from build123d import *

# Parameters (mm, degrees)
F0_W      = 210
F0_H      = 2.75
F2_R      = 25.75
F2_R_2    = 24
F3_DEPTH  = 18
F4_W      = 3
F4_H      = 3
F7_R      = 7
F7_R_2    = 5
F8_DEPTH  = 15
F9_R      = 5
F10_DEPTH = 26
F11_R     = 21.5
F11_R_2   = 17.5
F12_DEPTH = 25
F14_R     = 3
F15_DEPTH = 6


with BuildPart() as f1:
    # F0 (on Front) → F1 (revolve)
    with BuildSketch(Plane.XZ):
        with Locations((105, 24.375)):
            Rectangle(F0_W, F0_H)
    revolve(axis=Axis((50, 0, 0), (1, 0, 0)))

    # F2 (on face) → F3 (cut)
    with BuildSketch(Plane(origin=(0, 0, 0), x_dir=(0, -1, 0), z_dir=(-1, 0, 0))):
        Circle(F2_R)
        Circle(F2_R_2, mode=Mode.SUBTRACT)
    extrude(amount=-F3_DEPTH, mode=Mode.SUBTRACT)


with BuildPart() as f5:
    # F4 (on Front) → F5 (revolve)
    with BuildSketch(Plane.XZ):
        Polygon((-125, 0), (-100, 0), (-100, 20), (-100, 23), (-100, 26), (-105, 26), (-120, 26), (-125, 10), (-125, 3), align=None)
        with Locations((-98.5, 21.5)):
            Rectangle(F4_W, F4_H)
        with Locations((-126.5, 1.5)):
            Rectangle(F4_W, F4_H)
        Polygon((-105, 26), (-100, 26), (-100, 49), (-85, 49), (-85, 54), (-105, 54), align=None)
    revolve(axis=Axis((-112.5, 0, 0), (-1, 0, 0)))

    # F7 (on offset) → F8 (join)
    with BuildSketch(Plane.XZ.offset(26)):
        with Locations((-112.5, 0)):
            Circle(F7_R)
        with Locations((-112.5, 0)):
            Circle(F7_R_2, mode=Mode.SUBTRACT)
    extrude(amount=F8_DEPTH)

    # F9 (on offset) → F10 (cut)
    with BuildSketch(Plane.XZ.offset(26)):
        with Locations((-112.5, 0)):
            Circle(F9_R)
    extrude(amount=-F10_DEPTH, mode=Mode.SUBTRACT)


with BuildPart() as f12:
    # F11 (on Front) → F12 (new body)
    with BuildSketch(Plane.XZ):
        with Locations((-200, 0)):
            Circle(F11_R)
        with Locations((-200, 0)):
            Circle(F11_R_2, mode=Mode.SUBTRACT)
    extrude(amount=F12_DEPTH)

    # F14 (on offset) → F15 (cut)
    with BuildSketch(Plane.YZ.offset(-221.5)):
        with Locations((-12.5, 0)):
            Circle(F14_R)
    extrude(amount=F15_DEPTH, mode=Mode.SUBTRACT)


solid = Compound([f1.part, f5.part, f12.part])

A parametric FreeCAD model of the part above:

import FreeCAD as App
import Part
import Sketcher

V = App.Vector

doc = App.newDocument("Part")
body = doc.addObject("PartDesign::Body", "Body")

sketch1 = body.newObject("Sketcher::SketchObject", "Sketch")
sketch1.AttachmentSupport = (doc.getObject("XZ_Plane"), [""])
sketch1.MapMode = "FlatFace"
sketch1.addGeometry(Part.LineSegment(V(0, 25.75, 0), V(0, 23, 0)), False)
sketch1.addGeometry(Part.LineSegment(V(0, 23, 0), V(210, 23, 0)), False)
sketch1.addGeometry(Part.LineSegment(V(210, 23, 0), V(210, 25.75, 0)), False)
sketch1.addGeometry(Part.LineSegment(V(210, 25.75, 0), V(0, 25.75, 0)), False)
sketch1.addConstraint(Sketcher.Constraint("Coincident", 0, 2, 1, 1))
sketch1.addConstraint(Sketcher.Constraint("Coincident", 1, 2, 2, 1))
sketch1.addConstraint(Sketcher.Constraint("Coincident", 2, 2, 3, 1))
sketch1.addConstraint(Sketcher.Constraint("Coincident", 3, 2, 0, 1))
sketch1.addConstraint(Sketcher.Constraint("Vertical", 0))
sketch1.addConstraint(Sketcher.Constraint("Horizontal", 1))
sketch1.addConstraint(Sketcher.Constraint("Vertical", 2))
sketch1.addConstraint(Sketcher.Constraint("Horizontal", 3))
sketch1.addConstraint(Sketcher.Constraint("PointOnObject", 0, 2, -2))
sketch1.addConstraint(Sketcher.Constraint("DistanceX", 1, 1, 1, 2, 210.0))
sketch1.addConstraint(Sketcher.Constraint("DistanceY", -1, 1, 0, 2, 23.0))
sketch1.addConstraint(Sketcher.Constraint("DistanceY", 0, 2, 0, 1, 2.75))
revolution = body.newObject("PartDesign::Revolution", "Revolution")
revolution.Profile = sketch1
revolution.ReferenceAxis = (sketch1, ["H_Axis"])
revolution.Angle = 360

sketch2 = body.newObject("Sketcher::SketchObject", "Sketch001")
sketch2.AttachmentSupport = (doc.getObject("YZ_Plane"), [""])
sketch2.MapMode = "FlatFace"
sketch2.addGeometry(Part.Circle(V(0, 0, 0), V(0, 0, 1), 25.75), False)
sketch2.addGeometry(Part.Circle(V(0, 0, 0), V(0, 0, 1), 24), False)
sketch2.addConstraint(Sketcher.Constraint("Coincident", 0, 3, -1, 1))
sketch2.addConstraint(Sketcher.Constraint("Coincident", 1, 3, -1, 1))
sketch2.addConstraint(Sketcher.Constraint("Diameter", 1, 48.0))
sketch2.addConstraint(Sketcher.Constraint("Diameter", 0, 51.5))
pocket1 = body.newObject("PartDesign::Pocket", "Pocket")
pocket1.Profile = sketch2
pocket1.Length = 18
pocket1.Reversed = True
body2 = doc.addObject("PartDesign::Body", "Body001")
body2.AllowCompound = True

sketch3 = body2.newObject("Sketcher::SketchObject", "Sketch002")
sketch3.AttachmentSupport = (doc.getObject("XZ_Plane001"), [""])
sketch3.MapMode = "FlatFace"
sketch3.addGeometry(Part.LineSegment(V(-100, 0, 0), V(-100, 20, 0)), False)
sketch3.addGeometry(Part.LineSegment(V(-100, 20, 0), V(-97, 20, 0)), False)
sketch3.addGeometry(Part.LineSegment(V(-97, 20, 0), V(-97, 23, 0)), False)
sketch3.addGeometry(Part.LineSegment(V(-97, 23, 0), V(-100, 23, 0)), False)
sketch3.addGeometry(Part.LineSegment(V(-100, 23, 0), V(-100, 49, 0)), False)
sketch3.addGeometry(Part.LineSegment(V(-100, 49, 0), V(-85, 49, 0)), False)
sketch3.addGeometry(Part.LineSegment(V(-85, 49, 0), V(-85, 54, 0)), False)
sketch3.addGeometry(Part.LineSegment(V(-85, 54, 0), V(-105, 54, 0)), False)
sketch3.addGeometry(Part.LineSegment(V(-105, 54, 0), V(-105, 26, 0)), False)
sketch3.addGeometry(Part.LineSegment(V(-105, 26, 0), V(-120, 26, 0)), False)
sketch3.addGeometry(Part.LineSegment(V(-120, 26, 0), V(-125, 10, 0)), False)
sketch3.addGeometry(Part.LineSegment(V(-125, 10, 0), V(-125, 3, 0)), False)
sketch3.addGeometry(Part.LineSegment(V(-125, 3, 0), V(-128, 3, 0)), False)
sketch3.addGeometry(Part.LineSegment(V(-128, 3, 0), V(-128, 0, 0)), False)
sketch3.addGeometry(Part.LineSegment(V(-128, 0, 0), V(-100, 0, 0)), False)
sketch3.addConstraint(Sketcher.Constraint("Coincident", 0, 2, 1, 1))
sketch3.addConstraint(Sketcher.Constraint("Coincident", 1, 2, 2, 1))
sketch3.addConstraint(Sketcher.Constraint("Coincident", 2, 2, 3, 1))
sketch3.addConstraint(Sketcher.Constraint("Coincident", 3, 2, 4, 1))
sketch3.addConstraint(Sketcher.Constraint("Coincident", 4, 2, 5, 1))
sketch3.addConstraint(Sketcher.Constraint("Coincident", 5, 2, 6, 1))
sketch3.addConstraint(Sketcher.Constraint("Coincident", 6, 2, 7, 1))
sketch3.addConstraint(Sketcher.Constraint("Coincident", 7, 2, 8, 1))
sketch3.addConstraint(Sketcher.Constraint("Coincident", 8, 2, 9, 1))
sketch3.addConstraint(Sketcher.Constraint("Coincident", 9, 2, 10, 1))
sketch3.addConstraint(Sketcher.Constraint("Coincident", 10, 2, 11, 1))
sketch3.addConstraint(Sketcher.Constraint("Coincident", 11, 2, 12, 1))
sketch3.addConstraint(Sketcher.Constraint("Coincident", 12, 2, 13, 1))
sketch3.addConstraint(Sketcher.Constraint("Coincident", 13, 2, 14, 1))
sketch3.addConstraint(Sketcher.Constraint("Coincident", 14, 2, 0, 1))
sketch3.addConstraint(Sketcher.Constraint("Vertical", 0))
sketch3.addConstraint(Sketcher.Constraint("Horizontal", 1))
sketch3.addConstraint(Sketcher.Constraint("Vertical", 2))
sketch3.addConstraint(Sketcher.Constraint("Horizontal", 3))
sketch3.addConstraint(Sketcher.Constraint("Vertical", 4))
sketch3.addConstraint(Sketcher.Constraint("Horizontal", 5))
sketch3.addConstraint(Sketcher.Constraint("Vertical", 6))
sketch3.addConstraint(Sketcher.Constraint("Horizontal", 7))
sketch3.addConstraint(Sketcher.Constraint("Vertical", 8))
sketch3.addConstraint(Sketcher.Constraint("Horizontal", 9))
sketch3.addConstraint(Sketcher.Constraint("Vertical", 11))
sketch3.addConstraint(Sketcher.Constraint("Horizontal", 12))
sketch3.addConstraint(Sketcher.Constraint("Vertical", 13))
sketch3.addConstraint(Sketcher.Constraint("Horizontal", 14))
sketch3.addConstraint(Sketcher.Constraint("PointOnObject", 13, 2, -1))
sketch3.addConstraint(Sketcher.Constraint("Vertical", 0, 2, 3, 2))
sketch3.addConstraint(Sketcher.Constraint("Equal", 5, 9))
sketch3.addConstraint(Sketcher.Constraint("Equal", 3, 12))
sketch3.addConstraint(Sketcher.Constraint("Equal", 7, 0))
sketch3.addConstraint(Sketcher.Constraint("Equal", 12, 2))
sketch3.addConstraint(Sketcher.Constraint("Equal", 14, 8))
sketch3.addConstraint(Sketcher.Constraint("Equal", 2, 13))
sketch3.addConstraint(Sketcher.Constraint("DistanceX", 1, 1, 1, 2, 3.0))
sketch3.addConstraint(Sketcher.Constraint("DistanceX", 5, 1, 5, 2, 15.0))
sketch3.addConstraint(Sketcher.Constraint("DistanceX", 7, 2, 7, 1, 20.0))
sketch3.addConstraint(Sketcher.Constraint("DistanceX", 14, 1, 14, 2, 28.0))
sketch3.addConstraint(Sketcher.Constraint("DistanceY", 4, 1, 4, 2, 26.0))
sketch3.addConstraint(Sketcher.Constraint("DistanceY", 6, 1, 6, 2, 5.0))
sketch3.addConstraint(Sketcher.Constraint("DistanceY", 11, 2, 11, 1, 7.0))
sketch3.addConstraint(Sketcher.Constraint("DistanceX", 0, 2, -1, 1, 100.0))
revolution2 = body2.newObject("PartDesign::Revolution", "Revolution001")
revolution2.Profile = sketch3
revolution2.ReferenceAxis = (sketch3, ["H_Axis"])
revolution2.Angle = 360

sketch4 = body2.newObject("Sketcher::SketchObject", "Sketch003")
sketch4.AttachmentSupport = (doc.getObject("XZ_Plane001"), [""])
sketch4.MapMode = "FlatFace"
sketch4.AttachmentOffset = App.Placement(V(0, 0, 26), App.Rotation())
sketch4.addGeometry(Part.Circle(V(-112.5, 0, 0), V(0, 0, 1), 7), False)
sketch4.addGeometry(Part.Circle(V(-112.5, 0, 0), V(0, 0, 1), 5), False)
sketch4.addConstraint(Sketcher.Constraint("Coincident", 1, 3, 0, 3))
sketch4.addConstraint(Sketcher.Constraint("PointOnObject", 0, 3, -1))
sketch4.addConstraint(Sketcher.Constraint("Diameter", 0, 14.0))
sketch4.addConstraint(Sketcher.Constraint("Diameter", 1, 10.0))
sketch4.addConstraint(Sketcher.Constraint("DistanceX", 0, 3, -1, 1, 112.5))
pad1 = body2.newObject("PartDesign::Pad", "Pad")
pad1.Profile = sketch4
pad1.Length = 15

sketch5 = body2.newObject("Sketcher::SketchObject", "Sketch004")
sketch5.AttachmentSupport = (doc.getObject("XZ_Plane001"), [""])
sketch5.MapMode = "FlatFace"
sketch5.AttachmentOffset = App.Placement(V(0, 0, 26), App.Rotation())
sketch5.addGeometry(Part.Circle(V(-112.5, 0, 0), V(0, 0, 1), 5), False)
sketch5.addConstraint(Sketcher.Constraint("PointOnObject", 0, 3, -1))
sketch5.addConstraint(Sketcher.Constraint("Diameter", 0, 10.0))
sketch5.addConstraint(Sketcher.Constraint("DistanceX", 0, 3, -1, 1, 112.5))
pocket2 = body2.newObject("PartDesign::Pocket", "Pocket001")
pocket2.Profile = sketch5
pocket2.Length = 26
body3 = doc.addObject("PartDesign::Body", "Body002")

sketch6 = body3.newObject("Sketcher::SketchObject", "Sketch005")
sketch6.AttachmentSupport = (doc.getObject("XZ_Plane002"), [""])
sketch6.MapMode = "FlatFace"
sketch6.addGeometry(Part.Circle(V(-200, 0, 0), V(0, 0, 1), 21.5), False)
sketch6.addGeometry(Part.Circle(V(-200, 0, 0), V(0, 0, 1), 17.5), False)
sketch6.addConstraint(Sketcher.Constraint("Coincident", 1, 3, 0, 3))
sketch6.addConstraint(Sketcher.Constraint("PointOnObject", 0, 3, -1))
sketch6.addConstraint(Sketcher.Constraint("Diameter", 0, 43.0))
sketch6.addConstraint(Sketcher.Constraint("Diameter", 1, 35.0))
sketch6.addConstraint(Sketcher.Constraint("DistanceX", 0, 3, -1, 1, 200.0))
pad2 = body3.newObject("PartDesign::Pad", "Pad001")
pad2.Profile = sketch6
pad2.Length = 25

sketch7 = body3.newObject("Sketcher::SketchObject", "Sketch006")
sketch7.AttachmentSupport = (doc.getObject("YZ_Plane002"), [""])
sketch7.MapMode = "FlatFace"
sketch7.AttachmentOffset = App.Placement(V(0, 0, -221.5), App.Rotation())
sketch7.addGeometry(Part.Circle(V(-12.5, 0, 0), V(0, 0, 1), 3), False)
sketch7.addConstraint(Sketcher.Constraint("PointOnObject", 0, 3, -1))
sketch7.addConstraint(Sketcher.Constraint("Diameter", 0, 6.0))
sketch7.addConstraint(Sketcher.Constraint("DistanceX", 0, 3, -1, 1, 12.5))
pocket3 = body3.newObject("PartDesign::Pocket", "Pocket002")
pocket3.Profile = sketch7
pocket3.Length = 6
pocket3.Reversed = True

doc.recompute()
